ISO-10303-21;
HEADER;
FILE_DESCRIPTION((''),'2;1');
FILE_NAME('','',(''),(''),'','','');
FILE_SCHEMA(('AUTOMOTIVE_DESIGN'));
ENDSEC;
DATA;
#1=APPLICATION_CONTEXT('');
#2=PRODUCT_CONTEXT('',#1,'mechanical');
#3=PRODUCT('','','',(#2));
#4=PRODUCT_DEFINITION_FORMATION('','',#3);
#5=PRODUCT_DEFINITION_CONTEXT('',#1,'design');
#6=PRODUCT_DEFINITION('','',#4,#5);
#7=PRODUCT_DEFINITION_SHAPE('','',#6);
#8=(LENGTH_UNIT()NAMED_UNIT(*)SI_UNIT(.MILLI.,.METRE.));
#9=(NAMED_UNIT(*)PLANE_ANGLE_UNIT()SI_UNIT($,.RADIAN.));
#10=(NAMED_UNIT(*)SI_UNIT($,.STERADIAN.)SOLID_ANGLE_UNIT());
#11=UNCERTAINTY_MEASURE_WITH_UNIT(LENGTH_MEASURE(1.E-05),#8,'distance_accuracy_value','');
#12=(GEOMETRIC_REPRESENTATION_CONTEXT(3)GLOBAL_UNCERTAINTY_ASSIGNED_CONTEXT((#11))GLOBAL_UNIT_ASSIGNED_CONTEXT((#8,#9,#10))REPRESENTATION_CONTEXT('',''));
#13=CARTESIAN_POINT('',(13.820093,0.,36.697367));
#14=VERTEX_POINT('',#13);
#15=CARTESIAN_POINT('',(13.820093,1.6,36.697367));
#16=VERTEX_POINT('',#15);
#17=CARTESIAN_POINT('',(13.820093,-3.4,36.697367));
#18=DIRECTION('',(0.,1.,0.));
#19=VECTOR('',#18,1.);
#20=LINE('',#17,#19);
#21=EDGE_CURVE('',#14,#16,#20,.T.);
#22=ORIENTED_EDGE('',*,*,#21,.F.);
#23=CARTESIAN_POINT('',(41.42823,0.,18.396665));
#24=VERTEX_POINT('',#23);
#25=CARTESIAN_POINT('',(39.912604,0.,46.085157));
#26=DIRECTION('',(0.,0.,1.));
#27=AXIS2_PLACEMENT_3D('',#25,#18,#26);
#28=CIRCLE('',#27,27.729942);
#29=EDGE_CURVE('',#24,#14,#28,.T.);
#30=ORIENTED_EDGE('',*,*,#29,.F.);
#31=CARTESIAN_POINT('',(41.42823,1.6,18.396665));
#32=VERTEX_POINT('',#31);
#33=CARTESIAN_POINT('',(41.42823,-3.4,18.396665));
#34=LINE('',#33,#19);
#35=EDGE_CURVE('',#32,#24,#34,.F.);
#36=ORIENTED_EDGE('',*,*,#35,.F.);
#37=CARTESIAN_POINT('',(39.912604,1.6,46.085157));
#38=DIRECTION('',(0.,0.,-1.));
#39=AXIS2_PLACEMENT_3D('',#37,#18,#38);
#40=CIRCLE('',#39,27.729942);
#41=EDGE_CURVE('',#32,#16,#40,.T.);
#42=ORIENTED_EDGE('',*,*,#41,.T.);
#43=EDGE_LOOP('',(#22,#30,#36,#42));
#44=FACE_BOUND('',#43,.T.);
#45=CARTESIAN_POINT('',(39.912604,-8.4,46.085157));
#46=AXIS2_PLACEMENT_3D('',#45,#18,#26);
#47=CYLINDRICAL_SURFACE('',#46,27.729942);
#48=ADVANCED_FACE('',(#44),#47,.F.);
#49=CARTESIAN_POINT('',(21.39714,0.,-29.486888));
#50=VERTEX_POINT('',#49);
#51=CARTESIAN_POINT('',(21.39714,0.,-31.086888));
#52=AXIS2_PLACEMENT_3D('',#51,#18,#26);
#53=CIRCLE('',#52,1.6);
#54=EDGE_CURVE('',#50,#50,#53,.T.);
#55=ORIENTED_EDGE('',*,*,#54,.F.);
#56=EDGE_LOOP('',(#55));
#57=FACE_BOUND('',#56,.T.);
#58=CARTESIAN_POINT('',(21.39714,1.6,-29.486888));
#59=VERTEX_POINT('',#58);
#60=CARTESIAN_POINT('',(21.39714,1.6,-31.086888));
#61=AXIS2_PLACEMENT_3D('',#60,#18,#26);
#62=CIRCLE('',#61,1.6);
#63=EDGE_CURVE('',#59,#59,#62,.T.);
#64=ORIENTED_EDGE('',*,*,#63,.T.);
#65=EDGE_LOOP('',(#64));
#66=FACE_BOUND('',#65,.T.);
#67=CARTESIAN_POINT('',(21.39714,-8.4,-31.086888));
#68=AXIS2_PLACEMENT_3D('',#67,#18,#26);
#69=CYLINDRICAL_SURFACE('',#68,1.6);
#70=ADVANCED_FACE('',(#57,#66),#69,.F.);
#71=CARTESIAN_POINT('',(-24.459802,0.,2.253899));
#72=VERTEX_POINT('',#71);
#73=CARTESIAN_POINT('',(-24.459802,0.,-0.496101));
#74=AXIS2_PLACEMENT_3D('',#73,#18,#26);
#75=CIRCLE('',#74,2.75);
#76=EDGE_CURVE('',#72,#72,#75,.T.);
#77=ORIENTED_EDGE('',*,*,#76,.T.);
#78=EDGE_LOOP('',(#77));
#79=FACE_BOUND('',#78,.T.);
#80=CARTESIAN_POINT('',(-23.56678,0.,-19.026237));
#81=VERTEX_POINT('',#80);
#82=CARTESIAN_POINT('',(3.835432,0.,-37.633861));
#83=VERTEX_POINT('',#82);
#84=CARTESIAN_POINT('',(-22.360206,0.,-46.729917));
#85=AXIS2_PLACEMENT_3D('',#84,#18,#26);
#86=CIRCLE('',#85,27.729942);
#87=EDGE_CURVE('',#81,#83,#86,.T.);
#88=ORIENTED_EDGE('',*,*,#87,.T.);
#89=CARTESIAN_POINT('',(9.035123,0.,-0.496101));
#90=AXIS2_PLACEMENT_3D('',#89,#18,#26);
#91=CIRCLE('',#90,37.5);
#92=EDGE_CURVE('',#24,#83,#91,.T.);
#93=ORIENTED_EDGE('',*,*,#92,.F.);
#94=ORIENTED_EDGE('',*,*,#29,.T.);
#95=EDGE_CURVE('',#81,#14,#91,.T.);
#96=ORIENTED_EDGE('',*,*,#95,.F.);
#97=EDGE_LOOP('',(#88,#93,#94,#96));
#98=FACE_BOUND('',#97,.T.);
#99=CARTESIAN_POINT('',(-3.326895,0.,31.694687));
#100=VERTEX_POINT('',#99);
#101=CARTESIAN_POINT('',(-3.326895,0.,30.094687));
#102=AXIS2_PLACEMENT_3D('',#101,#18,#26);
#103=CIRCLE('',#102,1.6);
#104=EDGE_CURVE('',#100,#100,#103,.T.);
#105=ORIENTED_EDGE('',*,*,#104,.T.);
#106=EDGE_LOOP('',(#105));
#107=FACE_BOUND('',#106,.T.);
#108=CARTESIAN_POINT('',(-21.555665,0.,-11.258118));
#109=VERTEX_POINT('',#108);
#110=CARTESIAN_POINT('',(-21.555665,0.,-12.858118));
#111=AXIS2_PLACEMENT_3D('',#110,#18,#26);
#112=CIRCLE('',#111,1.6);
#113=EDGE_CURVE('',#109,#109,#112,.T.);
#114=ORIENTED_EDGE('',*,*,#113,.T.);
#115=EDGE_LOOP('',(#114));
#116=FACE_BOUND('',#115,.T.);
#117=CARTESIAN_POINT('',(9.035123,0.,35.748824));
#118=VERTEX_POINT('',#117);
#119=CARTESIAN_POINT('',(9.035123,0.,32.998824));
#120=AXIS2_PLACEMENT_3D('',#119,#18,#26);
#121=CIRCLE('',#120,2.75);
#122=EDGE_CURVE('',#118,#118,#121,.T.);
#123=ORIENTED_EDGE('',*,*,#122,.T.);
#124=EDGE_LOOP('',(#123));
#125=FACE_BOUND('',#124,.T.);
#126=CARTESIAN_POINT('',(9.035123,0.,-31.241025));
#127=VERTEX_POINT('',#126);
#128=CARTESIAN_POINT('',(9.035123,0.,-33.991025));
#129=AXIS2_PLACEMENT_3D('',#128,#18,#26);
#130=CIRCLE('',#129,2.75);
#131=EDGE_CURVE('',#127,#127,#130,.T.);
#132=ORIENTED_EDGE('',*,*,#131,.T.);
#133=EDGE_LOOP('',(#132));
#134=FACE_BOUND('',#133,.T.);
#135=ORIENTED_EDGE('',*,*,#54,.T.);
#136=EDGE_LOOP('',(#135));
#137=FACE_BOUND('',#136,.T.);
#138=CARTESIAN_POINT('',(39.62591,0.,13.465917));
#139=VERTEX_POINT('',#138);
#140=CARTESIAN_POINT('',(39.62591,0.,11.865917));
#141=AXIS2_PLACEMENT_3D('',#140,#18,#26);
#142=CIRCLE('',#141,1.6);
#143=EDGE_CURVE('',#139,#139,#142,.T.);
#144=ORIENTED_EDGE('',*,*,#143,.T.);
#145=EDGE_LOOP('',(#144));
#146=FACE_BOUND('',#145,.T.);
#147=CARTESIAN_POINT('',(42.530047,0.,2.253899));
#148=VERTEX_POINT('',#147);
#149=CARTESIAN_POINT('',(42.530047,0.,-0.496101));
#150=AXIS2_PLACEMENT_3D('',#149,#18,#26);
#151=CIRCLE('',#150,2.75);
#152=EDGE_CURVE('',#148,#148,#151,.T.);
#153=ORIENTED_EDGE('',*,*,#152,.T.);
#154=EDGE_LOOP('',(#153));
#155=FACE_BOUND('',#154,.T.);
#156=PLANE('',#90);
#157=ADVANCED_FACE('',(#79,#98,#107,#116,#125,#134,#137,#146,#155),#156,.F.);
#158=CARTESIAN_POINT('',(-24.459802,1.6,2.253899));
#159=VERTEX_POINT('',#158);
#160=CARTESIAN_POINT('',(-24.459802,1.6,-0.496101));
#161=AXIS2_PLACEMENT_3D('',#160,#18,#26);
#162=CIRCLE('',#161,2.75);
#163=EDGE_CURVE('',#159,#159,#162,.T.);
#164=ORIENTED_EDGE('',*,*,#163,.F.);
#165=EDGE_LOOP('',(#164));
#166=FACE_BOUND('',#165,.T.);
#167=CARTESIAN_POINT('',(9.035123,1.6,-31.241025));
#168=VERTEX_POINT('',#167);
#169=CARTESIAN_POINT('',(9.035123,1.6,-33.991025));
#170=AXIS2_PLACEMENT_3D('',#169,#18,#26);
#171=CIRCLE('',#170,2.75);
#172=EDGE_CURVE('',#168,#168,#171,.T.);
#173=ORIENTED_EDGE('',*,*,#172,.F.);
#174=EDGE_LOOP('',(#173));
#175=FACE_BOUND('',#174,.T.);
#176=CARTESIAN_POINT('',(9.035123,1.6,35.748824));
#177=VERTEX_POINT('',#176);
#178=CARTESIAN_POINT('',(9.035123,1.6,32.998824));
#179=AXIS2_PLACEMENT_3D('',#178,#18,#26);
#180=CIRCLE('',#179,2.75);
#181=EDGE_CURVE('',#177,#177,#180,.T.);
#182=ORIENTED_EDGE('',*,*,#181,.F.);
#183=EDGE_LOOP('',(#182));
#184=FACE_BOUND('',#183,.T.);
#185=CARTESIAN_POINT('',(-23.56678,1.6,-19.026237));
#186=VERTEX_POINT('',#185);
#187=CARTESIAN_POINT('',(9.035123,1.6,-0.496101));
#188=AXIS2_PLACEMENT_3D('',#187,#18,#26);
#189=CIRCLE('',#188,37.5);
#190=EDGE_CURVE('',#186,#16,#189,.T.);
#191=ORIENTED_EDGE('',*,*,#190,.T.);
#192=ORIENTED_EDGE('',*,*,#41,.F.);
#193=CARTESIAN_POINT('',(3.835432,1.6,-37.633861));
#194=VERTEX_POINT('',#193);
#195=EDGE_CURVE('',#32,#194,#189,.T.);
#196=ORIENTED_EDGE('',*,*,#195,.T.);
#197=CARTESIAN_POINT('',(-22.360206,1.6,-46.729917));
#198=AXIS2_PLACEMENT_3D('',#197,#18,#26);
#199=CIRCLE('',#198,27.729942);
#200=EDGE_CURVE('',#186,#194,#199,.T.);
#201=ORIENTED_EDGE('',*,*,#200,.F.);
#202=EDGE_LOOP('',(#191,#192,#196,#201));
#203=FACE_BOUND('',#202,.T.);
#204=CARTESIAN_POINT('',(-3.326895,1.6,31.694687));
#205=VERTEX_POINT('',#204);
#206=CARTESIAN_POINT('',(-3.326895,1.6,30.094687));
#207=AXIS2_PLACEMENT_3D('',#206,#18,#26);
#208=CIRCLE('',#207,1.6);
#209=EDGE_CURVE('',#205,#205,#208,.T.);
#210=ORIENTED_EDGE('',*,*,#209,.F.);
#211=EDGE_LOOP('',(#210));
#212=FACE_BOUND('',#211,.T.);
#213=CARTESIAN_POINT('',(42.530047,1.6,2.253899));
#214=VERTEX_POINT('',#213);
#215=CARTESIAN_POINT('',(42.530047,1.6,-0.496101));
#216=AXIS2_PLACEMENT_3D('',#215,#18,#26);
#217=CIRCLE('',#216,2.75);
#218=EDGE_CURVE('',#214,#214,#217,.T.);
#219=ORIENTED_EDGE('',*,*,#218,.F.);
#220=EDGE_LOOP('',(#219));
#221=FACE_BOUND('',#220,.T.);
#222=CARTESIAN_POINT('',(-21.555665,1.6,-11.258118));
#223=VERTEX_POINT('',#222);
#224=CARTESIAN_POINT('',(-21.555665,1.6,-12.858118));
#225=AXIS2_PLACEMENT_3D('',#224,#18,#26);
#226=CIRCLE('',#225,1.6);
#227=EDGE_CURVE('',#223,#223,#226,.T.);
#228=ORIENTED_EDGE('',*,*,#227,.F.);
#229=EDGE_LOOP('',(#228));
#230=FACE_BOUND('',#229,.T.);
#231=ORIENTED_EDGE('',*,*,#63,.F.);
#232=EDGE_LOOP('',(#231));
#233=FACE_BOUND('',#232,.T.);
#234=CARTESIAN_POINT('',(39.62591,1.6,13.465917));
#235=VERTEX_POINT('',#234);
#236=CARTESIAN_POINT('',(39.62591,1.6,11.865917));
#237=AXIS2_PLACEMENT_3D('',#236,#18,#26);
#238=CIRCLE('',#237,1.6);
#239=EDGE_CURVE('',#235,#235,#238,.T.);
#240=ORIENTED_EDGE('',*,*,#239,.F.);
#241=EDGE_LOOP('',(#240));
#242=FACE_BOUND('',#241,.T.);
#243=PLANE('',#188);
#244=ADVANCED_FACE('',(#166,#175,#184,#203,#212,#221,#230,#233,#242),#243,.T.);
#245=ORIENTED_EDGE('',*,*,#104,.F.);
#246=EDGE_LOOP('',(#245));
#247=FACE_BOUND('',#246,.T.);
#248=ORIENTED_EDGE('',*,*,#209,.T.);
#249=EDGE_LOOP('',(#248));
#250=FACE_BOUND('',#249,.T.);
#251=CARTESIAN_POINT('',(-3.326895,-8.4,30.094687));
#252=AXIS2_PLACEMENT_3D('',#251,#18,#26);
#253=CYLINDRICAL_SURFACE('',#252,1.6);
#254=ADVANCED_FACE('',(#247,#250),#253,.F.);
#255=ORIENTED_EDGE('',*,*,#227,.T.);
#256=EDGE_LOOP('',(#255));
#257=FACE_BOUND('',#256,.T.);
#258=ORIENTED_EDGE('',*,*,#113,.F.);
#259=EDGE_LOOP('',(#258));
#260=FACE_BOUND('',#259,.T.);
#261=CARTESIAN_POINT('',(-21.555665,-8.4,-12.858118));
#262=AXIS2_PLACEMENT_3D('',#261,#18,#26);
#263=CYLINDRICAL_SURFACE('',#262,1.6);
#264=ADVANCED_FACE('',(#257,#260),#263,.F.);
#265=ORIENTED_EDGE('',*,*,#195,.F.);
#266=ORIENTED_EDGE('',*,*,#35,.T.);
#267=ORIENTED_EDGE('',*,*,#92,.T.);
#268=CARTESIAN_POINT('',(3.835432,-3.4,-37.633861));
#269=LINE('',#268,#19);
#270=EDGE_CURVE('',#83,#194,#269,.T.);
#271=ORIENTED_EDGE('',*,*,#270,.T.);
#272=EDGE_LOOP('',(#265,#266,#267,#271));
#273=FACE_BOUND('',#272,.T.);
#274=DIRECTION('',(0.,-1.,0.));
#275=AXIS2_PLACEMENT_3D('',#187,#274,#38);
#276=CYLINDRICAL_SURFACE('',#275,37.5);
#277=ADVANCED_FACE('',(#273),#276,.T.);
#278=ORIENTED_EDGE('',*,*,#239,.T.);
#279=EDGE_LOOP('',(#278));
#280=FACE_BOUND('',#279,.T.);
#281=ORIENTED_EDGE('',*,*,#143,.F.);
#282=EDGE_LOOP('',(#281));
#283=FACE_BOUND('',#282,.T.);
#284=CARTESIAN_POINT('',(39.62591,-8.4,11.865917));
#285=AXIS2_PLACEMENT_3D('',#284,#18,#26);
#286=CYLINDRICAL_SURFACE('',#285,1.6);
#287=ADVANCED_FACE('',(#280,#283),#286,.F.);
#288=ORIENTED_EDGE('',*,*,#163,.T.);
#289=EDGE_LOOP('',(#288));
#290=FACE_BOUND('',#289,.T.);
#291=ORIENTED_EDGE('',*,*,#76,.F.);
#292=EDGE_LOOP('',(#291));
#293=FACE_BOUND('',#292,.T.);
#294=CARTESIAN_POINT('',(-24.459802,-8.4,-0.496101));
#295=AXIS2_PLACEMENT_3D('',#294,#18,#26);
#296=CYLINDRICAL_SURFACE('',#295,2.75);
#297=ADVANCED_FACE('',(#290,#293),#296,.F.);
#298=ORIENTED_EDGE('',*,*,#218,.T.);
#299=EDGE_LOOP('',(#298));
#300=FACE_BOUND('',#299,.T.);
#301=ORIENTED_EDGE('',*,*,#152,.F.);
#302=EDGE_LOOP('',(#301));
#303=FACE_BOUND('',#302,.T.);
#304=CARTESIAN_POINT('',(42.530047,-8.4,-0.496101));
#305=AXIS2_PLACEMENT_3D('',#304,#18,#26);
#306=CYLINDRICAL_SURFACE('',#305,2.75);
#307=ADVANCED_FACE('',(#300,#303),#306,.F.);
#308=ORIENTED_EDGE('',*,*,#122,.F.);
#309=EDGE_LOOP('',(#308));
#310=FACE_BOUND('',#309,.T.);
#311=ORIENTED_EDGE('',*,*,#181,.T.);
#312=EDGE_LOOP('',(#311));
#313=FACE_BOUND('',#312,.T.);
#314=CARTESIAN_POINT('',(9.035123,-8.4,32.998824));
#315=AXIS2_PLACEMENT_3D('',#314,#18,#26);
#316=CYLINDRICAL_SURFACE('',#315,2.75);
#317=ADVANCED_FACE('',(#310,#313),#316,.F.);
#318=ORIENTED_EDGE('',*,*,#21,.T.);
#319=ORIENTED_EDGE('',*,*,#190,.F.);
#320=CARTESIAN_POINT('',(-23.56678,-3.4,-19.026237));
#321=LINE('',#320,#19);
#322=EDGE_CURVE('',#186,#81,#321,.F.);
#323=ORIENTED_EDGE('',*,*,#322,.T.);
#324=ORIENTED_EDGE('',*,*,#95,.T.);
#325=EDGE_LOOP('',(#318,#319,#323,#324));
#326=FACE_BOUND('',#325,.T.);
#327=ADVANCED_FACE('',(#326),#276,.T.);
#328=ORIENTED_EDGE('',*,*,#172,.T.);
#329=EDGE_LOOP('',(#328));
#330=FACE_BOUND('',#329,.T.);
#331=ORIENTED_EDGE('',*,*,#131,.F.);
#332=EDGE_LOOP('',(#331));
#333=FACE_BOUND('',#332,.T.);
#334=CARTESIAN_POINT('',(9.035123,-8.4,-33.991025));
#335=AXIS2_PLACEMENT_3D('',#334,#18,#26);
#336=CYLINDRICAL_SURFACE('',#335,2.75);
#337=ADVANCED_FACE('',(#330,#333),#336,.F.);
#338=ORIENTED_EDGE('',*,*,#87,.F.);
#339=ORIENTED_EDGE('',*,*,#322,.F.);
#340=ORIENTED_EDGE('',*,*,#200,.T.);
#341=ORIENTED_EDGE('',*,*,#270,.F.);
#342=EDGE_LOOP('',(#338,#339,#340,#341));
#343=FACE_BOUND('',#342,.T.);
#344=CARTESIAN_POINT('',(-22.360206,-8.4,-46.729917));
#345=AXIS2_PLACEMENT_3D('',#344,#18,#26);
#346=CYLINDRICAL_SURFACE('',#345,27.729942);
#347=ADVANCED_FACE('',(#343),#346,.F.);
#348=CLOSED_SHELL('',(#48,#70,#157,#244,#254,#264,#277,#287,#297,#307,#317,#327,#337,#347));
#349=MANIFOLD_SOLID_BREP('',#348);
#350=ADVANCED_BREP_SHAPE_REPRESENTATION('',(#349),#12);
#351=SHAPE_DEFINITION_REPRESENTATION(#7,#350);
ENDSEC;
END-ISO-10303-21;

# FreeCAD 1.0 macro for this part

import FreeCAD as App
import Part
import Sketcher
from FreeCAD import Vector
Q = App.Units.Quantity

doc = App.newDocument("Part")
params = doc.addObject("Spreadsheet::Sheet", "Params")
for row, (alias, value) in enumerate([
    ("sketch1_diameter", "75 mm"),
    ("pad1_length", "1.6 mm"),
    ("sketch2_diameter", "3.2 mm"),
    ("sketch2_diameter2", "5.5 mm"),
    ("pocket1_length", "10 mm"),
    ("pocket2_length", "10 mm"),
], start=1):
    params.set(f"A{row}", alias)
    params.set(f"B{row}", "=" + value)
    params.setAlias(f"B{row}", alias)

body = doc.addObject("PartDesign::Body", "Body")

# Sketch on XZ plane
sketch1 = body.newObject("Sketcher::SketchObject", "Sketch")
sketch1.AttachmentSupport = (doc.getObject("XZ_Plane"), [""])
sketch1.MapMode = "FlatFace"
sketch1.addGeometry(Part.Circle(Vector(9, 0, 0), Vector(0, 0, 1), 38), False)
sketch1.addConstraint([
    Sketcher.Constraint("Diameter", 0, Q("75 mm")),
    Sketcher.Constraint("DistanceY", 0, 3, -1, 1, Q("0.496101 mm")),
    Sketcher.Constraint("DistanceX", -1, 1, 0, 3, Q("9.035123 mm")),
])
sketch1.setExpression("Constraints[0]", "Params.sketch1_diameter")
pad1 = body.newObject("PartDesign::Pad", "Pad")
pad1.Profile = sketch1
pad1.setExpression("Length", "Params.pad1_length")
pad1.Reversed = True

# Sketch on XZ plane
sketch2 = body.newObject("Sketcher::SketchObject", "Sketch001")
sketch2.AttachmentSupport = (doc.getObject("XZ_Plane"), [""])
sketch2.MapMode = "FlatFace"
sketch2.AttachmentOffset = App.Placement(Vector(0, 0, -1.6), App.Rotation())
sketch2.addGeometry([
    Part.Circle(Vector(-3.3, 30.1, 0), Vector(0, 0, 1), 1.6),  # 0
    Part.Circle(Vector(-24.5, -0.5, 0), Vector(0, 0, 1), 2.8),  # 1
    Part.Circle(Vector(9, -34, 0), Vector(0, 0, 1), 2.8),  # 2
    Part.Circle(Vector(42.5, -0.5, 0), Vector(0, 0, 1), 2.8),  # 3
    Part.Circle(Vector(9, 33, 0), Vector(0, 0, 1), 2.8),  # 4
    Part.Circle(Vector(-21.6, -12.9, 0), Vector(0, 0, 1), 1.6),  # 5
    Part.Circle(Vector(21.4, -31.1, 0), Vector(0, 0, 1), 1.6),  # 6
    Part.Circle(Vector(39.6, 11.9, 0), Vector(0, 0, 1), 1.6),  # 7
], False)
sketch2.addConstraint([
    Sketcher.Constraint("Equal", 1, 2),
    Sketcher.Constraint("Equal", 2, 3),
    Sketcher.Constraint("Equal", 3, 4),
    Sketcher.Constraint("Equal", 0, 5),
    Sketcher.Constraint("Equal", 5, 6),
    Sketcher.Constraint("Equal", 6, 7),
    Sketcher.Constraint("Horizontal", 1, 3, 3, 3),
    Sketcher.Constraint("Vertical", 2, 3, 4, 3),
    Sketcher.Constraint("Diameter", 0, Q("3.2 mm")),
    Sketcher.Constraint("Diameter", 1, Q("5.5 mm")),
    Sketcher.Constraint("DistanceX", 1, 3, -1, 1, Q("24.459802 mm")),
    Sketcher.Constraint("DistanceY", 1, 3, -1, 1, Q("0.496101 mm")),
    Sketcher.Constraint("DistanceY", 5, 3, -1, 1, Q("12.858118 mm")),
    Sketcher.Constraint("DistanceX", -1, 1, 6, 3, Q("21.39714 mm")),
    Sketcher.Constraint("DistanceY", 6, 3, -1, 1, Q("31.086888 mm")),
    Sketcher.Constraint("DistanceX", -1, 1, 7, 3, Q("39.62591 mm")),
    Sketcher.Constraint("DistanceY", 2, 3, 0, 3, Q("64.085712 mm")),
    Sketcher.Constraint("DistanceX", 0, 3, 3, 3, Q("45.856942 mm")),
    Sketcher.Constraint("DistanceX", 1, 3, 3, 3, Q("66.989849 mm")),
    Sketcher.Constraint("DistanceY", 2, 3, 4, 3, Q("66.989849 mm")),
    Sketcher.Constraint("DistanceX", 5, 3, 0, 3, Q("18.22877 mm")),
    Sketcher.Constraint("DistanceY", 5, 3, 4, 3, Q("45.856942 mm")),
    Sketcher.Constraint("DistanceY", 7, 3, 0, 3, Q("18.22877 mm")),
    Sketcher.Constraint("DistanceX", -1, 1, 2, 3, Q("9.035123 mm")),
])
sketch2.setExpression("Constraints[8]", "Params.sketch2_diameter")
sketch2.setExpression("Constraints[9]", "Params.sketch2_diameter2")
pocket1 = body.newObject("PartDesign::Pocket", "Pocket")
pocket1.Profile = sketch2
pocket1.setExpression("Length", "Params.pocket1_length")
pocket1.Reversed = True

# Sketch on XZ plane
sketch3 = body.newObject("Sketcher::SketchObject", "Sketch002")
sketch3.AttachmentSupport = (doc.getObject("XZ_Plane"), [""])
sketch3.MapMode = "FlatFace"
sketch3.AttachmentOffset = App.Placement(Vector(0, 0, -1.6), App.Rotation())
sketch3.addGeometry([
    Part.Circle(Vector(40, 46, 0), Vector(0, 0, 1), 28),
    Part.Circle(Vector(-22, -47, 0), Vector(0, 0, 1), 28),
], False)
sketch3.addConstraint([
    Sketcher.Constraint("Equal", 0, 1),
    Sketcher.Constraint("Diameter", 0, Q("55.459885 mm")),
    Sketcher.Constraint("DistanceX", 1, 3, 0, 3, Q("62.27281 mm")),
    Sketcher.Constraint("DistanceX", -1, 1, 0, 3, Q("39.912604 mm")),
    Sketcher.Constraint("DistanceY", -1, 1, 0, 3, Q("46.085157 mm")),
    Sketcher.Constraint("DistanceY", 1, 3, -1, 1, Q("46.729917 mm")),
])
pocket2 = body.newObject("PartDesign::Pocket", "Pocket001")
pocket2.Profile = sketch3
pocket2.setExpression("Length", "Params.pocket2_length")
pocket2.Reversed = True

doc.recompute()
